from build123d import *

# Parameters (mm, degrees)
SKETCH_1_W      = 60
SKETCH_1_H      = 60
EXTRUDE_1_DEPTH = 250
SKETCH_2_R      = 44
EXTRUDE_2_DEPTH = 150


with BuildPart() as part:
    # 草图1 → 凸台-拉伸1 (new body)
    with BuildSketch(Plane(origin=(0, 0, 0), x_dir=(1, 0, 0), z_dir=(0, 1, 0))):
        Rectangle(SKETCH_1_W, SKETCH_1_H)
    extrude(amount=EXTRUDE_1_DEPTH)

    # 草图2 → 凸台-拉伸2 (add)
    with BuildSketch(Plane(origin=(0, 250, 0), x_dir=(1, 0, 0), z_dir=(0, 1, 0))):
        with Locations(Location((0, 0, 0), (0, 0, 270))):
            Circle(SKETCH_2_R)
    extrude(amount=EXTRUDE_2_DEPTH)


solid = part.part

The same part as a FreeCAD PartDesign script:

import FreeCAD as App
import Part
import Sketcher


def add_polygon(sketch, points):
    """Adds a closed chain of lines whose ends are joined by coincident constraints."""
    first, n = sketch.GeometryCount, len(points)
    for a, b in zip(points, points[1:] + points[:1]):
        sketch.addGeometry(Part.LineSegment(App.Vector(*a, 0), App.Vector(*b, 0)), False)
    for i in range(n):
        sketch.addConstraint(Sketcher.Constraint("Coincident", first + i, 2, first + (i + 1) % n, 1))

doc = App.newDocument("Part")
params = doc.addObject("Spreadsheet::Sheet", "Params")
for row, (alias, value) in enumerate([
    ("sketch1_width", "60 mm"),
    ("pad1_length", "250 mm"),
    ("sketch2_diameter", "88 mm"),
    ("pad2_length", "150 mm"),
], start=1):
    params.set(f"A{row}", alias)
    params.set(f"B{row}", "=" + value)
    params.setAlias(f"B{row}", alias)

body = doc.addObject("PartDesign::Body", "Body")

sketch1 = body.newObject("Sketcher::SketchObject", "Sketch")
sketch1.AttachmentSupport = (doc.getObject("XZ_Plane"), [""])
sketch1.MapMode = "FlatFace"
add_polygon(sketch1, [(-30, -30), (-30, 30), (30, 30), (30, -30)])
sketch1.addConstraint(Sketcher.Constraint("Vertical", 0))
sketch1.addConstraint(Sketcher.Constraint("Horizontal", 1))
sketch1.addConstraint(Sketcher.Constraint("Vertical", 2))
sketch1.addConstraint(Sketcher.Constraint("Horizontal", 3))
sketch1.addConstraint(Sketcher.Constraint("Symmetric", 0, 2, 2, 2, -1, 1))
sketch1.addConstraint(Sketcher.Constraint("Equal", 3, 0))
sketch1.addConstraint(Sketcher.Constraint("DistanceX", 1, 1, 1, 2, 60.0))
sketch1.setExpression("Constraints[10]", "Params.sketch1_width")
pad1 = body.newObject("PartDesign::Pad", "Pad")
pad1.Profile = sketch1
pad1.setExpression("Length", "Params.pad1_length")
pad1.Reversed = True

sketch2 = body.newObject("Sketcher::SketchObject", "Sketch001")
sketch2.AttachmentSupport = (doc.getObject("XZ_Plane"), [""])
sketch2.MapMode = "FlatFace"
sketch2.AttachmentOffset = App.Placement(App.Vector(0, 0, -250), App.Rotation())
sketch2.addGeometry(Part.Circle(App.Vector(0, 0, 0), App.Vector(0, 0, 1), 44), False)
sketch2.addConstraint(Sketcher.Constraint("Coincident", 0, 3, -1, 1))
sketch2.addConstraint(Sketcher.Constraint("Diameter", 0, 88.0))
sketch2.setExpression("Constraints[1]", "Params.sketch2_diameter")
pad2 = body.newObject("PartDesign::Pad", "Pad001")
pad2.Profile = sketch2
pad2.setExpression("Length", "Params.pad2_length")
pad2.Reversed = True

doc.recompute()
